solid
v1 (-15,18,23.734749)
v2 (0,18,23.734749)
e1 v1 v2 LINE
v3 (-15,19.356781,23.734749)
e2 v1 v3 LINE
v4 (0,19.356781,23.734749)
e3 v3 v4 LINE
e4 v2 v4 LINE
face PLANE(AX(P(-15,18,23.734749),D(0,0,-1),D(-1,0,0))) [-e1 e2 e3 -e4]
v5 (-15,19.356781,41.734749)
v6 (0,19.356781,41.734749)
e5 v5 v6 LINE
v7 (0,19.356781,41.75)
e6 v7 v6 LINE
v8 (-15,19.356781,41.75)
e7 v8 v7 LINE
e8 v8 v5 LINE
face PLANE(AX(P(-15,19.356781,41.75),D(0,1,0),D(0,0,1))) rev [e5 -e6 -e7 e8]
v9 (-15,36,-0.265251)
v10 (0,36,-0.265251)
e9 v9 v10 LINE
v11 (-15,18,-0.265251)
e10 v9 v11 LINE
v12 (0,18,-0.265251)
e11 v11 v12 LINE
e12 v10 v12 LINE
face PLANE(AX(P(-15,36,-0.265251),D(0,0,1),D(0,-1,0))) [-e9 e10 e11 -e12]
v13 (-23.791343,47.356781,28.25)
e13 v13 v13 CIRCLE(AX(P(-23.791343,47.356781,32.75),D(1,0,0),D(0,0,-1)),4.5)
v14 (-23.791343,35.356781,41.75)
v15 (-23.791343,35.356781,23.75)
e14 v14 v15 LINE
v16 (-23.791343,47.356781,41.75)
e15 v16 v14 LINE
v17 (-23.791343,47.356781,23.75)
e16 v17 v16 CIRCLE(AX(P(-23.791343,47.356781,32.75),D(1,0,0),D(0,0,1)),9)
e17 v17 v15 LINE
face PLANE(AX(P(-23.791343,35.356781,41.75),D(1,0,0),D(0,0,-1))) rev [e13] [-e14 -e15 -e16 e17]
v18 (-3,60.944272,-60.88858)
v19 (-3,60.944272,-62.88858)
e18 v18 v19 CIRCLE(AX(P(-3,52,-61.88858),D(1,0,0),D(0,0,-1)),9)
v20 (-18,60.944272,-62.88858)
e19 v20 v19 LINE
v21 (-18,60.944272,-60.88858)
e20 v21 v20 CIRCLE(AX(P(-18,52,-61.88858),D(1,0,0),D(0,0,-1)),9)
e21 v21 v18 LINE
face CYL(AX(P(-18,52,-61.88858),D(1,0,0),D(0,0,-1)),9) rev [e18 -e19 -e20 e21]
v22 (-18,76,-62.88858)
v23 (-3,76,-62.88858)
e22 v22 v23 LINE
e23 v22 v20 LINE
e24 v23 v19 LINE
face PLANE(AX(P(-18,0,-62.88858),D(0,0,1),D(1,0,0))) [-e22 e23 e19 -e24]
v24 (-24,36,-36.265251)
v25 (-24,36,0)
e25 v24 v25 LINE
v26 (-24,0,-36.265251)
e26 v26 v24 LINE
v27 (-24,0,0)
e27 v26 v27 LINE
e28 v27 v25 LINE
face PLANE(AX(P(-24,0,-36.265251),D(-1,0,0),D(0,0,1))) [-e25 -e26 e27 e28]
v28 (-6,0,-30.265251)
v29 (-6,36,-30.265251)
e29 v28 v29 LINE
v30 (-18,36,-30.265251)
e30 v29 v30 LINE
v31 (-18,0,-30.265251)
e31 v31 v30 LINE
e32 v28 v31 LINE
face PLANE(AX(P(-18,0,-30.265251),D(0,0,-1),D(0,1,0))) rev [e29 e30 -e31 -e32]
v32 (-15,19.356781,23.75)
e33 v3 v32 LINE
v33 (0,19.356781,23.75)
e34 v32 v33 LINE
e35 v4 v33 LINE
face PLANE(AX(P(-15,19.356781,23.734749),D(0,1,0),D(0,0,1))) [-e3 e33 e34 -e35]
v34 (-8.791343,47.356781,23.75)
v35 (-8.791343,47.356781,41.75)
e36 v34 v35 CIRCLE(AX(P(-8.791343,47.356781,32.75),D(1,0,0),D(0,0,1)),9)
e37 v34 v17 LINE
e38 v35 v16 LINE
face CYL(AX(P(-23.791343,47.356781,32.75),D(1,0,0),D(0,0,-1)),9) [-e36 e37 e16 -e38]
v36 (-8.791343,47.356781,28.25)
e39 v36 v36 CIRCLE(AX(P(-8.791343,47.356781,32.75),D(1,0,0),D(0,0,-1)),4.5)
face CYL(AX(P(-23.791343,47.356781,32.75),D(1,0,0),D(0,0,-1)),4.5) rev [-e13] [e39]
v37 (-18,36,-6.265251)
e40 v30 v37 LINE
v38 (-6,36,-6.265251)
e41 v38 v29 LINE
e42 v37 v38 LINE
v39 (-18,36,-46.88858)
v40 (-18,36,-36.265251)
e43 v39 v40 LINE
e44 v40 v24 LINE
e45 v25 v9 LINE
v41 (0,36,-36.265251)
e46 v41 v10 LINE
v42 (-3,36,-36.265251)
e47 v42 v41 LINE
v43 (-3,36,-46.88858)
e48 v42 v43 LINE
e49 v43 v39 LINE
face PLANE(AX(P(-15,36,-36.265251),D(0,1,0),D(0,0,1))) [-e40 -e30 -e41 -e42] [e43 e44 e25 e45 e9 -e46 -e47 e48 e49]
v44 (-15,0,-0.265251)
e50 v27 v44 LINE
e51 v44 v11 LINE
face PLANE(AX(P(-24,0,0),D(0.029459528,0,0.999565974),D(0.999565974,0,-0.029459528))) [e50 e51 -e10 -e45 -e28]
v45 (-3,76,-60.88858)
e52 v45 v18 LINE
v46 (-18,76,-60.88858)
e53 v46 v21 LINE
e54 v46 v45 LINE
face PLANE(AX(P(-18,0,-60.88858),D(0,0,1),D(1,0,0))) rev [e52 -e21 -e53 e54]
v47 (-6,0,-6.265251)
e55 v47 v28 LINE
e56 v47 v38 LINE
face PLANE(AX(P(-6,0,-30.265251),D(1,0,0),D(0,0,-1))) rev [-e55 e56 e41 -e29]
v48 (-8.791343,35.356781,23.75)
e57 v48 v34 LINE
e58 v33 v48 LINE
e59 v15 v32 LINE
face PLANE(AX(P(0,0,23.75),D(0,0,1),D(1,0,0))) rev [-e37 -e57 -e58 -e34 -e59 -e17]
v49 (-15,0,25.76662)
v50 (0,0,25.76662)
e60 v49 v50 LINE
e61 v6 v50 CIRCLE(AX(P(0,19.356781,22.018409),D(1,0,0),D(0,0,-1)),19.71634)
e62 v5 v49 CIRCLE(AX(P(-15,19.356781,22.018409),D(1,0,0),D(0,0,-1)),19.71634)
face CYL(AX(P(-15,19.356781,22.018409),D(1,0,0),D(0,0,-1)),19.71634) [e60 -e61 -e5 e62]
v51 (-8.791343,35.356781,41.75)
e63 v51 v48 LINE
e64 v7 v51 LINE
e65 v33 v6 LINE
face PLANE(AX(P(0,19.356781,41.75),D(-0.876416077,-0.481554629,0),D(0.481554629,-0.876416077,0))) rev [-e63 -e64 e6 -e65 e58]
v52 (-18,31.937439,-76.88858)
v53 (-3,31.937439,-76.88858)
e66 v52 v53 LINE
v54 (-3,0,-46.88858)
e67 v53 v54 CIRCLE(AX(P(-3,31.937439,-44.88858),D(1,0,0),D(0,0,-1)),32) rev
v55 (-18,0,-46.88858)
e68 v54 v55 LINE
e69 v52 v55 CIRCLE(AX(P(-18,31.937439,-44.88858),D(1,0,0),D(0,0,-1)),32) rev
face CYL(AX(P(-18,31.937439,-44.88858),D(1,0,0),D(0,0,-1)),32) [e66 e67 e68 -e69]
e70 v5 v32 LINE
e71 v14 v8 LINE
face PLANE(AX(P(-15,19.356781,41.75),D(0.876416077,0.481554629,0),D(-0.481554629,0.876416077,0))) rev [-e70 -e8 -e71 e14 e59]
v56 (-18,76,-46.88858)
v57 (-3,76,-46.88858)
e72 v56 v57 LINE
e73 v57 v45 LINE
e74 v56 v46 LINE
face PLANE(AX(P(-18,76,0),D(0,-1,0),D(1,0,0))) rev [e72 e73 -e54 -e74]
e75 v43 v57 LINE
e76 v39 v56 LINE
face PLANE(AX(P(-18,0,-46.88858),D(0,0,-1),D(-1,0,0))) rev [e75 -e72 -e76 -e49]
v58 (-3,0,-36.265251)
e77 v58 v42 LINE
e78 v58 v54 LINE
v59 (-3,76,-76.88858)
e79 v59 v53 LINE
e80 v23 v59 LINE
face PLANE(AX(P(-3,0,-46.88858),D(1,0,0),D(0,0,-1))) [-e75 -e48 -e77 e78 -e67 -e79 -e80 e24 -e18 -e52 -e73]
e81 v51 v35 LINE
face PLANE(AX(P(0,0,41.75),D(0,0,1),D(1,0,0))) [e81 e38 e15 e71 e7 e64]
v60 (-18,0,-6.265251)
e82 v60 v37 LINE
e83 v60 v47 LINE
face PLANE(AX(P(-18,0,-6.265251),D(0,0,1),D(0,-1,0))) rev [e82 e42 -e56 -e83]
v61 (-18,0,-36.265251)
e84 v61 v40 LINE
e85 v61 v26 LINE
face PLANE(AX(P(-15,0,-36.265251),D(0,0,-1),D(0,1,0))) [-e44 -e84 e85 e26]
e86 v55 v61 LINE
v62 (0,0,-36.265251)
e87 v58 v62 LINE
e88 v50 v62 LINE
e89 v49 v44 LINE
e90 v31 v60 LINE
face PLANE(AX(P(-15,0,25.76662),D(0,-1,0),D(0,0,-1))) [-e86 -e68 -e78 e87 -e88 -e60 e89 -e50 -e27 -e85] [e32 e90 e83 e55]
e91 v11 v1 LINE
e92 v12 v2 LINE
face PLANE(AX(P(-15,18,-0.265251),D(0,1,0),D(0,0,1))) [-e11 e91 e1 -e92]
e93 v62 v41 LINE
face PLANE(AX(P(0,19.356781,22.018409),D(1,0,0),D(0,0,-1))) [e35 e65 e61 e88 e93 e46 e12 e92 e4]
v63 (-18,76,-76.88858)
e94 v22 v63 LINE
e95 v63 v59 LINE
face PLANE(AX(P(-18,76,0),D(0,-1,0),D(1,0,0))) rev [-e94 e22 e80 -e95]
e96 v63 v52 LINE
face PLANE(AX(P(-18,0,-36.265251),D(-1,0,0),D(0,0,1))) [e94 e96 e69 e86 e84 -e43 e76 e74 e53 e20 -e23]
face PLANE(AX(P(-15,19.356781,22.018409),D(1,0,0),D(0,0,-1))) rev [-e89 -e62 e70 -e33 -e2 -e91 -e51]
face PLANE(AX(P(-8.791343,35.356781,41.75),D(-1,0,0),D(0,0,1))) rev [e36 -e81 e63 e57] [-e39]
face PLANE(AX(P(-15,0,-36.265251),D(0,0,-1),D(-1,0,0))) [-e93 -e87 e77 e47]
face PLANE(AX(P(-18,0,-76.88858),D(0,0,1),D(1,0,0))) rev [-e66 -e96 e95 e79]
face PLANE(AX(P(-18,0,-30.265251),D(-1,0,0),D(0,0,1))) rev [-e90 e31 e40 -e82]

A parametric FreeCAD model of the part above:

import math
import FreeCAD as App
import Part
import Sketcher
from FreeCAD import Vector
Q = App.Units.Quantity

doc = App.newDocument("Part")
params = doc.addObject("Spreadsheet::Sheet", "Params")
for row, (alias, value) in enumerate([
    ("sketch1_width", "36 mm"),
    ("sketch1_width2", "18 mm"),
    ("sketch1_height", "24 mm"),
    ("pad1_length", "15 mm"),
    ("sketch2_width", "15 mm"),
    ("sketch2_height", "12 mm"),
    ("pad2_length", "18 mm"),
    ("sketch3_radius", "9 mm"),
    ("pad3_length", "15 mm"),
    ("sketch4_diameter", "9 mm"),
    ("pocket1_length", "15 mm"),
    ("sketch5_width", "9 mm"),
    ("sketch5_height", "36 mm"),
    ("pad4_length", "36 mm"),
    ("sketch6_width", "12 mm"),
    ("sketch6_height", "24 mm"),
    ("pad5_length", "61.12539 mm"),
    ("sketch7_width", "15 mm"),
    ("pad6_length", "36 mm"),
    ("sketch8_radius", "32 mm"),
    ("sketch8_radius2", "9 mm"),
    ("sketch8_width", "76 mm"),
    ("sketch8_height", "14 mm"),
    ("pad7_length", "15 mm"),
], start=1):
    params.set(f"A{row}", alias)
    params.set(f"B{row}", "=" + value)
    params.setAlias(f"B{row}", alias)

body = doc.addObject("PartDesign::Body", "Body")

# Sketch on YZ plane
sketch1 = body.newObject("Sketcher::SketchObject", "Sketch")
sketch1.AttachmentSupport = (doc.getObject("YZ_Plane"), [""])
sketch1.MapMode = "FlatFace"
sketch1.addGeometry([
    Part.LineSegment(Vector(0, 25.8, 0), Vector(0, -36.3, 0)),  # 0
    Part.LineSegment(Vector(0, -36.3, 0), Vector(36, -36.3, 0)),  # 1
    Part.LineSegment(Vector(36, -36.3, 0), Vector(36, -0.3, 0)),  # 2
    Part.LineSegment(Vector(36, -0.3, 0), Vector(18, -0.3, 0)),  # 3
    Part.LineSegment(Vector(18, -0.3, 0), Vector(18, 23.7, 0)),  # 4
    Part.LineSegment(Vector(18, 23.7, 0), Vector(19.4, 23.7, 0)),  # 5
    Part.LineSegment(Vector(19.4, 23.7, 0), Vector(19.4, 41.7, 0)),  # 6
    Part.ArcOfCircle(Part.Circle(Vector(19.4, 22, 0), Vector(0, 0, 1), 19.7), math.radians(90), math.radians(169)),  # 7
], False)
sketch1.addConstraint([
    Sketcher.Constraint("Coincident", 0, 2, 1, 1),
    Sketcher.Constraint("Coincident", 1, 2, 2, 1),
    Sketcher.Constraint("Coincident", 2, 2, 3, 1),
    Sketcher.Constraint("Coincident", 3, 2, 4, 1),
    Sketcher.Constraint("Coincident", 4, 2, 5, 1),
    Sketcher.Constraint("Coincident", 5, 2, 6, 1),
    Sketcher.Constraint("Coincident", 6, 2, 7, 1),
    Sketcher.Constraint("Coincident", 7, 2, 0, 1),
    Sketcher.Constraint("Vertical", 0),
    Sketcher.Constraint("Horizontal", 1),
    Sketcher.Constraint("Vertical", 2),
    Sketcher.Constraint("Horizontal", 3),
    Sketcher.Constraint("Vertical", 4),
    Sketcher.Constraint("Horizontal", 5),
    Sketcher.Constraint("Vertical", 6),
    Sketcher.Constraint("PointOnObject", 0, 2, -2),
    Sketcher.Constraint("Vertical", 7, 3, 5, 2),
    Sketcher.Constraint("Equal", 1, 2),
    Sketcher.Constraint("Equal", 3, 6),
    Sketcher.Constraint("DistanceX", 1, 1, 1, 2, Q("36 mm")),
    Sketcher.Constraint("DistanceX", 3, 2, 3, 1, Q("18 mm")),
    Sketcher.Constraint("DistanceY", 4, 1, 4, 2, Q("24 mm")),
    Sketcher.Constraint("Radius", 7, Q("19.71634 mm")),
    Sketcher.Constraint("DistanceX", 5, 1, 5, 2, Q("1.356781 mm")),
    Sketcher.Constraint("DistanceY", -1, 1, 7, 3, Q("22.018409 mm")),
])
sketch1.setExpression("Constraints[19]", "Params.sketch1_width")
sketch1.setExpression("Constraints[20]", "Params.sketch1_width2")
sketch1.setExpression("Constraints[21]", "Params.sketch1_height")
pad1 = body.newObject("PartDesign::Pad", "Pad")
pad1.Profile = sketch1
pad1.setExpression("Length", "Params.pad1_length")
pad1.Reversed = True

# Sketch on XY plane
sketch2 = body.newObject("Sketcher::SketchObject", "Sketch001")
sketch2.AttachmentSupport = (doc.getObject("XY_Plane"), [""])
sketch2.MapMode = "FlatFace"
sketch2.AttachmentOffset = App.Placement(Vector(0, 0, 23.75), App.Rotation())
sketch2.addGeometry([
    Part.LineSegment(Vector(-24, 35, 0), Vector(-15, 19, 0)),  # 0
    Part.LineSegment(Vector(-15, 19, 0), Vector(0, 19, 0)),  # 1
    Part.LineSegment(Vector(0, 19, 0), Vector(-9, 35, 0)),  # 2
    Part.LineSegment(Vector(-9, 35, 0), Vector(-9, 47, 0)),  # 3
    Part.LineSegment(Vector(-9, 47, 0), Vector(-24, 47, 0)),  # 4
    Part.LineSegment(Vector(-24, 47, 0), Vector(-24, 35, 0)),  # 5
], False)
sketch2.addConstraint([
    Sketcher.Constraint("Coincident", 0, 2, 1, 1),
    Sketcher.Constraint("Coincident", 1, 2, 2, 1),
    Sketcher.Constraint("Coincident", 2, 2, 3, 1),
    Sketcher.Constraint("Coincident", 3, 2, 4, 1),
    Sketcher.Constraint("Coincident", 4, 2, 5, 1),
    Sketcher.Constraint("Coincident", 5, 2, 0, 1),
    Sketcher.Constraint("Horizontal", 1),
    Sketcher.Constraint("Vertical", 3),
    Sketcher.Constraint("Horizontal", 4),
    Sketcher.Constraint("Vertical", 5),
    Sketcher.Constraint("PointOnObject", 1, 2, -2),
    Sketcher.Constraint("Parallel", 0, 2),
    Sketcher.Constraint("Horizontal", 2, 2, 5, 2),
    Sketcher.Constraint("DistanceX", 1, 1, 1, 2, Q("15 mm")),
    Sketcher.Constraint("DistanceY", 3, 1, 3, 2, Q("12 mm")),
    Sketcher.Constraint("DistanceY", 0, 2, 2, 2, Q("16 mm")),
    Sketcher.Constraint("Distance", 0, Q("18.256169 mm")),
    Sketcher.Constraint("DistanceY", -1, 1, 0, 2, Q("19.356781 mm")),
])
sketch2.setExpression("Constraints[13]", "Params.sketch2_width")
sketch2.setExpression("Constraints[14]", "Params.sketch2_height")
pad2 = body.newObject("PartDesign::Pad", "Pad001")
pad2.Profile = sketch2
pad2.setExpression("Length", "Params.pad2_length")

# Sketch on YZ plane
sketch3 = body.newObject("Sketcher::SketchObject", "Sketch002")
sketch3.AttachmentSupport = (doc.getObject("YZ_Plane"), [""])
sketch3.MapMode = "FlatFace"
sketch3.AttachmentOffset = App.Placement(Vector(0, 0, -8.791343), App.Rotation())
sketch3.addGeometry([
    Part.LineSegment(Vector(47, 42, 0), Vector(47, 24, 0)),
    Part.ArcOfCircle(Part.Circle(Vector(47, 33, 0), Vector(0, 0, 1), 9), math.radians(-90), math.radians(90)),
], False)
sketch3.addConstraint([
    Sketcher.Constraint("Coincident", 0, 1, 1, 2),
    Sketcher.Constraint("Coincident", 1, 1, 0, 2),
    Sketcher.Constraint("Vertical", 0),
    Sketcher.Constraint("Vertical", 1, 3, 0, 1),
    Sketcher.Constraint("Radius", 1, Q("9 mm")),
    Sketcher.Constraint("DistanceY", -1, 1, 1, 3, Q("32.75 mm")),
    Sketcher.Constraint("DistanceX", -1, 1, 1, 3, Q("47.356781 mm")),
])
sketch3.setExpression("Constraints[4]", "Params.sketch3_radius")
pad3 = body.newObject("PartDesign::Pad", "Pad002")
pad3.Profile = sketch3
pad3.setExpression("Length", "Params.pad3_length")
pad3.Reversed = True

# Sketch on YZ plane
sketch4 = body.newObject("Sketcher::SketchObject", "Sketch003")
sketch4.AttachmentSupport = (doc.getObject("YZ_Plane"), [""])
sketch4.MapMode = "FlatFace"
sketch4.AttachmentOffset = App.Placement(Vector(0, 0, -8.791343), App.Rotation())
sketch4.addGeometry(Part.Circle(Vector(47.4, 32.8, 0), Vector(0, 0, 1), 4.5), False)
sketch4.addConstraint([
    Sketcher.Constraint("Diameter", 0, Q("9 mm")),
    Sketcher.Constraint("DistanceY", -1, 1, 0, 3, Q("32.75 mm")),
    Sketcher.Constraint("DistanceX", -1, 1, 0, 3, Q("47.356781 mm")),
])
sketch4.setExpression("Constraints[0]", "Params.sketch4_diameter")
pocket1 = body.newObject("PartDesign::Pocket", "Pocket")
pocket1.Profile = sketch4
pocket1.setExpression("Length", "Params.pocket1_length")
body2 = doc.addObject("PartDesign::Body", "Body001")

# Sketch on XZ plane
sketch5 = body2.newObject("Sketcher::SketchObject", "Sketch004")
sketch5.AttachmentSupport = (doc.getObject("XZ_Plane001"), [""])
sketch5.MapMode = "FlatFace"
sketch5.AttachmentOffset = App.Placement(Vector(0, 0, -36), App.Rotation())
sketch5.addGeometry([
    Part.LineSegment(Vector(-15, -36, 0), Vector(-24, -36, 0)),
    Part.LineSegment(Vector(-24, -36, 0), Vector(-24, 0, 0)),
    Part.LineSegment(Vector(-24, 0, 0), Vector(-15, 0, 0)),
    Part.LineSegment(Vector(-15, 0, 0), Vector(-15, -36, 0)),
], False)
sketch5.addConstraint([
    Sketcher.Constraint("Coincident", 0, 2, 1, 1),
    Sketcher.Constraint("Coincident", 1, 2, 2, 1),
    Sketcher.Constraint("Coincident", 2, 2, 3, 1),
    Sketcher.Constraint("Coincident", 3, 2, 0, 1),
    Sketcher.Constraint("Horizontal", 0),
    Sketcher.Constraint("Vertical", 1),
    Sketcher.Constraint("Vertical", 3),
    Sketcher.Constraint("PointOnObject", 1, 2, -1),
    Sketcher.Constraint("DistanceX", 0, 2, 0, 1, Q("9 mm")),
    Sketcher.Constraint("DistanceY", 3, 2, 3, 1, Q("36 mm")),
    Sketcher.Constraint("DistanceX", 0, 2, -1, 1, Q("24 mm")),
    Sketcher.Constraint("DistanceY", 1, 1, 1, 2, Q("36.265251 mm")),
])
sketch5.setExpression("Constraints[8]", "Params.sketch5_width")
sketch5.setExpression("Constraints[9]", "Params.sketch5_height")
pad4 = body2.newObject("PartDesign::Pad", "Pad003")
pad4.Profile = sketch5
pad4.setExpression("Length", "Params.pad4_length")
body3 = doc.addObject("PartDesign::Body", "Body002")

# Sketch on XZ plane
sketch6 = body3.newObject("Sketcher::SketchObject", "Sketch005")
sketch6.AttachmentSupport = (doc.getObject("XZ_Plane002"), [""])
sketch6.MapMode = "FlatFace"
sketch6.AttachmentOffset = App.Placement(Vector(0, 0, -36), App.Rotation())
sketch6.addGeometry([
    Part.LineSegment(Vector(-18, -30, 0), Vector(-18, -6, 0)),
    Part.LineSegment(Vector(-18, -6, 0), Vector(-6, -6, 0)),
    Part.LineSegment(Vector(-6, -6, 0), Vector(-6, -30, 0)),
    Part.LineSegment(Vector(-6, -30, 0), Vector(-18, -30, 0)),
], False)
sketch6.addConstraint([
    Sketcher.Constraint("Coincident", 0, 2, 1, 1),
    Sketcher.Constraint("Coincident", 1, 2, 2, 1),
    Sketcher.Constraint("Coincident", 2, 2, 3, 1),
    Sketcher.Constraint("Coincident", 3, 2, 0, 1),
    Sketcher.Constraint("Vertical", 0),
    Sketcher.Constraint("Horizontal", 1),
    Sketcher.Constraint("Vertical", 2),
    Sketcher.Constraint("Horizontal", 3),
    Sketcher.Constraint("DistanceX", 1, 1, 1, 2, Q("12 mm")),
    Sketcher.Constraint("DistanceY", 0, 1, 0, 2, Q("24 mm")),
    Sketcher.Constraint("DistanceX", 0, 2, -1, 1, Q("18 mm")),
    Sketcher.Constraint("DistanceY", 0, 2, -1, 1, Q("6.265251 mm")),
])
sketch6.setExpression("Constraints[8]", "Params.sketch6_width")
sketch6.setExpression("Constraints[9]", "Params.sketch6_height")
pad5 = body3.newObject("PartDesign::Pad", "Pad004")
pad5.Profile = sketch6
pad5.setExpression("Length", "Params.pad5_length")
doc.recompute()

body4 = doc.addObject("PartDesign::Body", "Body003")
body4.BaseFeature = body3
boolean = body.newObject("PartDesign::Boolean", "Boolean")
boolean.Type = "Cut"
boolean.addObjects([body4])
doc.recompute()

boolean2 = body2.newObject("PartDesign::Boolean", "Boolean001")
boolean2.Type = "Cut"
boolean2.addObjects([body3])
doc.recompute()

boolean3 = body.newObject("PartDesign::Boolean", "Boolean002")
boolean3.Type = "Fuse"
boolean3.addObjects([body2])

# Sketch on XZ plane
sketch7 = body.newObject("Sketcher::SketchObject", "Sketch006")
sketch7.AttachmentSupport = (doc.getObject("XZ_Plane"), [""])
sketch7.MapMode = "FlatFace"
sketch7.AttachmentOffset = App.Placement(Vector(0, 0, -36), App.Rotation())
sketch7.addGeometry([
    Part.LineSegment(Vector(-18, -47, 0), Vector(-18, -36, 0)),
    Part.LineSegment(Vector(-18, -36, 0), Vector(-3, -36, 0)),
    Part.LineSegment(Vector(-3, -36, 0), Vector(-3, -47, 0)),
    Part.LineSegment(Vector(-3, -47, 0), Vector(-18, -47, 0)),
], False)
sketch7.addConstraint([
    Sketcher.Constraint("Coincident", 0, 2, 1, 1),
    Sketcher.Constraint("Coincident", 1, 2, 2, 1),
    Sketcher.Constraint("Coincident", 2, 2, 3, 1),
    Sketcher.Constraint("Coincident", 3, 2, 0, 1),
    Sketcher.Constraint("Vertical", 0),
    Sketcher.Constraint("Horizontal", 1),
    Sketcher.Constraint("Vertical", 2),
    Sketcher.Constraint("Horizontal", 3),
    Sketcher.Constraint("DistanceX", 1, 1, 1, 2, Q("15 mm")),
    Sketcher.Constraint("DistanceX", 0, 2, -1, 1, Q("18 mm")),
    Sketcher.Constraint("DistanceY", 0, 1, 0, 2, Q("10.623329 mm")),
    Sketcher.Constraint("DistanceY", 0, 2, -1, 1, Q("36.265251 mm")),
])
sketch7.setExpression("Constraints[8]", "Params.sketch7_width")
pad6 = body.newObject("PartDesign::Pad", "Pad005")
pad6.Profile = sketch7
pad6.setExpression("Length", "Params.pad6_length")

# Sketch on YZ plane
sketch8 = body.newObject("Sketcher::SketchObject", "Sketch007")
sketch8.AttachmentSupport = (doc.getObject("YZ_Plane"), [""])
sketch8.MapMode = "FlatFace"
sketch8.AttachmentOffset = App.Placement(Vector(0, 0, -3), App.Rotation())
sketch8.addGeometry([
    Part.LineSegment(Vector(76, -47, 0), Vector(0, -47, 0)),  # 0
    Part.ArcOfCircle(Part.Circle(Vector(32, -45, 0), Vector(0, 0, 1), 32), math.radians(-176), math.radians(-90)),  # 1
    Part.LineSegment(Vector(32, -77, 0), Vector(76, -77, 0)),  # 2
    Part.LineSegment(Vector(76, -77, 0), Vector(76, -63, 0)),  # 3
    Part.LineSegment(Vector(76, -63, 0), Vector(61, -63, 0)),  # 4
    Part.ArcOfCircle(Part.Circle(Vector(52, -62, 0), Vector(0, 0, 1), 9), math.radians(-90), math.radians(-6)),  # 5
    Part.ArcOfCircle(Part.Circle(Vector(52, -62, 0), Vector(0, 0, 1), 9), math.radians(6), math.radians(270)),  # 6
    Part.LineSegment(Vector(61, -61, 0), Vector(76, -61, 0)),  # 7
    Part.LineSegment(Vector(76, -61, 0), Vector(76, -47, 0)),  # 8
], False)
sketch8.addConstraint([
    Sketcher.Constraint("Coincident", 0, 2, 1, 1),
    Sketcher.Constraint("Tangent", 1, 2, 2, 1),
    Sketcher.Constraint("Coincident", 2, 2, 3, 1),
    Sketcher.Constraint("Coincident", 3, 2, 4, 1),
    Sketcher.Constraint("Coincident", 4, 2, 5, 2),
    Sketcher.Constraint("Tangent", 5, 1, 6, 2),
    Sketcher.Constraint("Coincident", 6, 1, 7, 1),
    Sketcher.Constraint("Coincident", 7, 2, 8, 1),
    Sketcher.Constraint("Coincident", 8, 2, 0, 1),
    Sketcher.Constraint("Horizontal", 0),
    Sketcher.Constraint("Horizontal", 2),
    Sketcher.Constraint("Vertical", 3),
    Sketcher.Constraint("Horizontal", 4),
    Sketcher.Constraint("Horizontal", 7),
    Sketcher.Constraint("Vertical", 8),
    Sketcher.Constraint("Equal", 5, 6),
    Sketcher.Constraint("PointOnObject", 0, 2, -2),
    Sketcher.Constraint("Vertical", 6, 3, 5, 1),
    Sketcher.Constraint("Vertical", 4, 2, 6, 1),
    Sketcher.Constraint("Vertical", 3, 2, 7, 2),
    Sketcher.Constraint("Equal", 3, 8),
    Sketcher.Constraint("Radius", 1, Q("32 mm")),
    Sketcher.Constraint("Radius", 5, Q("9 mm")),
    Sketcher.Constraint("DistanceX", 0, 2, 0, 1, Q("76 mm")),
    Sketcher.Constraint("DistanceY", 3, 1, 3, 2, Q("14 mm")),
    Sketcher.Constraint("DistanceX", -1, 1, 5, 3, Q("52 mm")),
    Sketcher.Constraint("DistanceY", 5, 3, 1, 3, Q("17 mm")),
    Sketcher.Constraint("DistanceY", 1, 3, -1, 1, Q("44.88858 mm")),
])
sketch8.setExpression("Constraints[21]", "Params.sketch8_radius")
sketch8.setExpression("Constraints[22]", "Params.sketch8_radius2")
sketch8.setExpression("Constraints[23]", "Params.sketch8_width")
sketch8.setExpression("Constraints[24]", "Params.sketch8_height")
pad7 = body.newObject("PartDesign::Pad", "Pad006")
pad7.Profile = sketch8
pad7.setExpression("Length", "Params.pad7_length")
pad7.Reversed = True

doc.recompute()
